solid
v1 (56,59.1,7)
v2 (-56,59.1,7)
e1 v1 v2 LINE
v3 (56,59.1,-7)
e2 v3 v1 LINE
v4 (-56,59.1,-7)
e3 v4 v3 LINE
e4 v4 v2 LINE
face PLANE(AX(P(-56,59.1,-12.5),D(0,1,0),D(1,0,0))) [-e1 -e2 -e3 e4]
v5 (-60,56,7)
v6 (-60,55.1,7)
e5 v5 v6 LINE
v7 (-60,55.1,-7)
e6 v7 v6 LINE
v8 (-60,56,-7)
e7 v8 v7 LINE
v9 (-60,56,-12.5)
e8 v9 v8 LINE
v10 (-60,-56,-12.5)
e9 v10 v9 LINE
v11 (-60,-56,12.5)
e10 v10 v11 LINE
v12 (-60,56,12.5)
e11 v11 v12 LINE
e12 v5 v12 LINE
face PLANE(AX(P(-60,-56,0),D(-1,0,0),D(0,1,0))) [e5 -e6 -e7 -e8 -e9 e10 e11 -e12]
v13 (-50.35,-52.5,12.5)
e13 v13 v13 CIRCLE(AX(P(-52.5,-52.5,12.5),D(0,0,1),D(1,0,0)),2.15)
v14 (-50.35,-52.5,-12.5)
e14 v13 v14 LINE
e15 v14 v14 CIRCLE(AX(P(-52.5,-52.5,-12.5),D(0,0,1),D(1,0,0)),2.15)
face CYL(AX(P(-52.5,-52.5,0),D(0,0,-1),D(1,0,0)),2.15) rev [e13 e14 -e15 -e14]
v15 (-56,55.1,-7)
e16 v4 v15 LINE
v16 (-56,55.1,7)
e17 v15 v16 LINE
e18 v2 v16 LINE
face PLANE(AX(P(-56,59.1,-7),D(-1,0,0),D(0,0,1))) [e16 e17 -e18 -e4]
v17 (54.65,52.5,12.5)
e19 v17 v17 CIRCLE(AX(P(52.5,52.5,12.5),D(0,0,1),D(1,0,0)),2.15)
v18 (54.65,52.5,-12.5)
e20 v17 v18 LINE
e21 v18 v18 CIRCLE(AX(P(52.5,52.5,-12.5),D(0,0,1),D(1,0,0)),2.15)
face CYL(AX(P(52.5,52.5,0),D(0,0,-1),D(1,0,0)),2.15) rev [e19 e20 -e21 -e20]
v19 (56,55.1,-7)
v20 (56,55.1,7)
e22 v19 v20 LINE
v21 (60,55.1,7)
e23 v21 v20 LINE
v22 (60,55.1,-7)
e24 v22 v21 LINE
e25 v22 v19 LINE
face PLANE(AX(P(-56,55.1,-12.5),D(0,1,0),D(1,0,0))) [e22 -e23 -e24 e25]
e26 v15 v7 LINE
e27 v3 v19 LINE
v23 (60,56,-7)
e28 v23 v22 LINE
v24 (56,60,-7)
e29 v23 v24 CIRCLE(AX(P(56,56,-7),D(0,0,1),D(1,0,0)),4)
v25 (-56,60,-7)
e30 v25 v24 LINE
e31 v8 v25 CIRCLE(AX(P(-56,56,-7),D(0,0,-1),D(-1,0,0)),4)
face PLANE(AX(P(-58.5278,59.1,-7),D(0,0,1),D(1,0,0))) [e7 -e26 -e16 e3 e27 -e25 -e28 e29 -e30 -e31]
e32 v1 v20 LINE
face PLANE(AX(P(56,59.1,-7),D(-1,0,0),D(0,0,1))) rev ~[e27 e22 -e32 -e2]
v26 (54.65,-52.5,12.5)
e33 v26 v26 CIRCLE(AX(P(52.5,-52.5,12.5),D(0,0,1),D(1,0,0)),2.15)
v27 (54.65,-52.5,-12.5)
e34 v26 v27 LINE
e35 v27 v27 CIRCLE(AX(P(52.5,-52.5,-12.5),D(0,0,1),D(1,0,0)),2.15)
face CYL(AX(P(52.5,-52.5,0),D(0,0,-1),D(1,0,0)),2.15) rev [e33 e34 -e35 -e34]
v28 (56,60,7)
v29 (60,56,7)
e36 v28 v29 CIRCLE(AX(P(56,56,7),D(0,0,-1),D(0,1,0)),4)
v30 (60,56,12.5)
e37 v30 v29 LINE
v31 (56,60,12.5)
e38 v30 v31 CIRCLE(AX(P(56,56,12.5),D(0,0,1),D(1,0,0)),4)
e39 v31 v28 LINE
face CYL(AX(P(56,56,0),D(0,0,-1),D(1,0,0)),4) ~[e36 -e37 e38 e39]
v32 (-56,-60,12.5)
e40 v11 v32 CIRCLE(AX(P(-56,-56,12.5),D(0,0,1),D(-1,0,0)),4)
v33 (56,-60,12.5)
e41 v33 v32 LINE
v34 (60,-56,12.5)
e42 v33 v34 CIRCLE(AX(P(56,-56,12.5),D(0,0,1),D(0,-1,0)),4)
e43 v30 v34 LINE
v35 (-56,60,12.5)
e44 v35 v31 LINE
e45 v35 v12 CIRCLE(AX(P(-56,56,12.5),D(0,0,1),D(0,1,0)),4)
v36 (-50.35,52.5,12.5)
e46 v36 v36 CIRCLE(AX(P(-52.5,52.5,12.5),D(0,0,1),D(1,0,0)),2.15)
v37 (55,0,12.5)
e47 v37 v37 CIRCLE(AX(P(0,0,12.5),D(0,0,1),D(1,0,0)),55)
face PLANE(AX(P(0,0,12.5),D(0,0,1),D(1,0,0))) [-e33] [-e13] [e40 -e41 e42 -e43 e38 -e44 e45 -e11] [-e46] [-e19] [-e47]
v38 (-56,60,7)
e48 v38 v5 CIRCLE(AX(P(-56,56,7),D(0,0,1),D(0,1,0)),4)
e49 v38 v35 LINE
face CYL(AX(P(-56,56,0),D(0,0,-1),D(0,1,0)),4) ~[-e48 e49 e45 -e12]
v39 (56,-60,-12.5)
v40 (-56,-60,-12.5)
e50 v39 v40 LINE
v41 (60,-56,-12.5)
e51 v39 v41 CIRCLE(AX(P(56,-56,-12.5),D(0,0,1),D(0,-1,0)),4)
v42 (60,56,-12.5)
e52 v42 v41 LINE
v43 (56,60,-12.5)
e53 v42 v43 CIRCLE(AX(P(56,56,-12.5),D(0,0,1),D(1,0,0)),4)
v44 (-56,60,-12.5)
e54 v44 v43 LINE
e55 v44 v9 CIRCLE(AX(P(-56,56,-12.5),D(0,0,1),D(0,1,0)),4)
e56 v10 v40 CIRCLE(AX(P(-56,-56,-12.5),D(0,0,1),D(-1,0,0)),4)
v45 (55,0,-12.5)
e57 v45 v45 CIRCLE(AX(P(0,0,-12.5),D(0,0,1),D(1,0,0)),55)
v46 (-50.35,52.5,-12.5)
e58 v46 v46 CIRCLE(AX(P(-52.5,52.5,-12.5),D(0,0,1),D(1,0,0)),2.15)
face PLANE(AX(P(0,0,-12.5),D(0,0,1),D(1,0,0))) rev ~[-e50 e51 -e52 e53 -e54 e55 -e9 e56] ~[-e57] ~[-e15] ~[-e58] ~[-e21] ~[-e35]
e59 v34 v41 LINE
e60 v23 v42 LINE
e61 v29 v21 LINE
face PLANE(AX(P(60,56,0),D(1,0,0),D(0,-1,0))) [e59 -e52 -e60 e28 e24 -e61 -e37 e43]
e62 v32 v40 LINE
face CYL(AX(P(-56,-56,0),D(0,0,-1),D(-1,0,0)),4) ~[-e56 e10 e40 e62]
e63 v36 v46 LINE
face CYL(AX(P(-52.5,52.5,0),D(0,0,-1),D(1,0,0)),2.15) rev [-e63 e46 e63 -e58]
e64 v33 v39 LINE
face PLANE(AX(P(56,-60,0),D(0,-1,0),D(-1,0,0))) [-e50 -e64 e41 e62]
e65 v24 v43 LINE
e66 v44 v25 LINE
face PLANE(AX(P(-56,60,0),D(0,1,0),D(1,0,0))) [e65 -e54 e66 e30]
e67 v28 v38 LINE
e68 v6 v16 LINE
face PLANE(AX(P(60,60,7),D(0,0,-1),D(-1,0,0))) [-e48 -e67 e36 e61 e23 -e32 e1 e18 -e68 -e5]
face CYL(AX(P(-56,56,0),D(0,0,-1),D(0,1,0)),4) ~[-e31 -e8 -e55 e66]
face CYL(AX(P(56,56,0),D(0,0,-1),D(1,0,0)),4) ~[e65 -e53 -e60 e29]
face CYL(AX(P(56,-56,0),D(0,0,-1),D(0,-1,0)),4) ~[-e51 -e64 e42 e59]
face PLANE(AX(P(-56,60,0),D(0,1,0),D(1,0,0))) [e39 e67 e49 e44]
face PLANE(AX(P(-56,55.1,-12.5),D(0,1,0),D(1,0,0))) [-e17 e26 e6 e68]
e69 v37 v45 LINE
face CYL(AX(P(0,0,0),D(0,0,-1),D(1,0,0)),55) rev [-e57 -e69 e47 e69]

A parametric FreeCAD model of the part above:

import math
import FreeCAD as App
import Part
import Sketcher

V = App.Vector


def add_polygon(sketch, points):
    """Adds a closed chain of lines whose ends are joined by coincident constraints."""
    first, n = sketch.GeometryCount, len(points)
    for a, b in zip(points, points[1:] + points[:1]):
        sketch.addGeometry(Part.LineSegment(App.Vector(*a, 0), App.Vector(*b, 0)), False)
    for i in range(n):
        sketch.addConstraint(Sketcher.Constraint("Coincident", first + i, 2, first + (i + 1) % n, 1))

doc = App.newDocument("Part")
body = doc.addObject("PartDesign::Body", "Body")

# Sketch on XY plane
sketch1 = body.newObject("Sketcher::SketchObject", "Sketch")
sketch1.AttachmentSupport = (doc.getObject("XY_Plane"), [""])
sketch1.MapMode = "FlatFace"
sketch1.addGeometry([
    Part.LineSegment(V(56, 60, 0), V(-56, 60, 0)),  # 0
    Part.ArcOfCircle(Part.Circle(V(-56, 56, 0), V(0, 0, 1), 4), math.radians(90), math.radians(180)),  # 1
    Part.LineSegment(V(-60, 56, 0), V(-60, -56, 0)),  # 2
    Part.ArcOfCircle(Part.Circle(V(-56, -56, 0), V(0, 0, 1), 4), math.radians(180), math.radians(270)),  # 3
    Part.LineSegment(V(-56, -60, 0), V(56, -60, 0)),  # 4
    Part.ArcOfCircle(Part.Circle(V(56, -56, 0), V(0, 0, 1), 4), math.radians(-90), math.radians(0)),  # 5
    Part.LineSegment(V(60, -56, 0), V(60, 56, 0)),  # 6
    Part.ArcOfCircle(Part.Circle(V(56, 56, 0), V(0, 0, 1), 4), math.radians(0), math.radians(90)),  # 7
    Part.Circle(V(-52.5, -52.5, 0), V(0, 0, 1), 2.1),  # 8
    Part.Circle(V(52.5, -52.5, 0), V(0, 0, 1), 2.1),  # 9
    Part.Circle(V(-52.5, 52.5, 0), V(0, 0, 1), 2.1),  # 10
    Part.Circle(V(0, 0, 0), V(0, 0, 1), 55),  # 11
    Part.Circle(V(52.5, 52.5, 0), V(0, 0, 1), 2.1),  # 12
], False)
sketch1.addConstraint([
    Sketcher.Constraint("Tangent", 0, 2, 1, 1),
    Sketcher.Constraint("Tangent", 1, 2, 2, 1),
    Sketcher.Constraint("Tangent", 2, 2, 3, 1),
    Sketcher.Constraint("Tangent", 3, 2, 4, 1),
    Sketcher.Constraint("Tangent", 4, 2, 5, 1),
    Sketcher.Constraint("Tangent", 5, 2, 6, 1),
    Sketcher.Constraint("Tangent", 6, 2, 7, 1),
    Sketcher.Constraint("Tangent", 7, 2, 0, 1),
    Sketcher.Constraint("Horizontal", 0),
    Sketcher.Constraint("Vertical", 2),
    Sketcher.Constraint("Horizontal", 4),
    Sketcher.Constraint("Vertical", 6),
    Sketcher.Constraint("Coincident", 11, 3, -1, 1),
    Sketcher.Constraint("Equal", 1, 3),
    Sketcher.Constraint("Equal", 3, 5),
    Sketcher.Constraint("Equal", 5, 7),
    Sketcher.Constraint("Equal", 8, 9),
    Sketcher.Constraint("Equal", 9, 10),
    Sketcher.Constraint("Equal", 10, 12),
    Sketcher.Constraint("Symmetric", 1, 3, 5, 3, -1, 1),
    Sketcher.Constraint("Symmetric", 9, 3, 10, 3, -1, 1),
    Sketcher.Constraint("Symmetric", 8, 3, 12, 3, -1, 1),
    Sketcher.Constraint("Symmetric", 8, 3, 9, 3, -2),
    Sketcher.Constraint("Equal", 4, 2),
    Sketcher.Constraint("Diameter", 11, 110.0),
    Sketcher.Constraint("Radius", 1, 4.0),
    Sketcher.Constraint("Diameter", 8, 4.3),
    Sketcher.Constraint("DistanceX", 8, 3, 9, 3, 105.0),
    Sketcher.Constraint("DistanceY", 8, 3, 10, 3, 105.0),
    Sketcher.Constraint("DistanceX", 0, 2, 0, 1, 112.0),
])
pad1 = body.newObject("PartDesign::Pad", "Pad")
pad1.Profile = sketch1
pad1.Length = 25
pad1.Midplane = True

# Sketch on XZ plane
sketch2 = body.newObject("Sketcher::SketchObject", "Sketch001")
sketch2.AttachmentSupport = (doc.getObject("XZ_Plane"), [""])
sketch2.MapMode = "FlatFace"
sketch2.AttachmentOffset = App.Placement(V(0, 0, -60), App.Rotation())
add_polygon(sketch2, [(60, -7), (-60, -7), (-60, 7), (60, 7)])  # lines 0-3
sketch2.addConstraint([
    Sketcher.Constraint("Horizontal", 0),
    Sketcher.Constraint("Vertical", 1),
    Sketcher.Constraint("Horizontal", 2),
    Sketcher.Constraint("Vertical", 3),
    Sketcher.Constraint("Symmetric", 0, 2, 2, 2, -1, 1),
    Sketcher.Constraint("DistanceY", 1, 1, 1, 2, 14.0),
    Sketcher.Constraint("DistanceX", 0, 2, 0, 1, 120.0),
])
pocket1 = body.newObject("PartDesign::Pocket", "Pocket")
pocket1.Profile = sketch2
pocket1.Length = 0.9
pocket1.Reversed = True

# Sketch on XZ plane
sketch3 = body.newObject("Sketcher::SketchObject", "Sketch002")
sketch3.AttachmentSupport = (doc.getObject("XZ_Plane"), [""])
sketch3.MapMode = "FlatFace"
sketch3.AttachmentOffset = App.Placement(V(0, 0, -59.1), App.Rotation())
add_polygon(sketch3, [(60, -7), (56, -7), (56, 7), (60, 7)])  # lines 0-3
add_polygon(sketch3, [(-56, 7), (-56, -7), (-60, -7), (-60, 7)])  # lines 4-7
sketch3.addConstraint([
    Sketcher.Constraint("Horizontal", 0),
    Sketcher.Constraint("Vertical", 1),
    Sketcher.Constraint("Horizontal", 2),
    Sketcher.Constraint("Vertical", 3),
    Sketcher.Constraint("Vertical", 4),
    Sketcher.Constraint("Horizontal", 5),
    Sketcher.Constraint("Vertical", 6),
    Sketcher.Constraint("Horizontal", 7),
    Sketcher.Constraint("Symmetric", 1, 2, 4, 2, -1, 1),
    Sketcher.Constraint("Symmetric", 3, 2, 6, 2, -1, 1),
    Sketcher.Constraint("Horizontal", 3, 2, 4, 2),
    Sketcher.Constraint("DistanceX", 0, 2, 0, 1, 4.0),
    Sketcher.Constraint("DistanceY", 1, 1, 1, 2, 14.0),
    Sketcher.Constraint("DistanceX", -1, 1, 0, 2, 56.0),
])
pocket2 = body.newObject("PartDesign::Pocket", "Pocket001")
pocket2.Profile = sketch3
pocket2.Length = 4
pocket2.Reversed = True

doc.recompute()
